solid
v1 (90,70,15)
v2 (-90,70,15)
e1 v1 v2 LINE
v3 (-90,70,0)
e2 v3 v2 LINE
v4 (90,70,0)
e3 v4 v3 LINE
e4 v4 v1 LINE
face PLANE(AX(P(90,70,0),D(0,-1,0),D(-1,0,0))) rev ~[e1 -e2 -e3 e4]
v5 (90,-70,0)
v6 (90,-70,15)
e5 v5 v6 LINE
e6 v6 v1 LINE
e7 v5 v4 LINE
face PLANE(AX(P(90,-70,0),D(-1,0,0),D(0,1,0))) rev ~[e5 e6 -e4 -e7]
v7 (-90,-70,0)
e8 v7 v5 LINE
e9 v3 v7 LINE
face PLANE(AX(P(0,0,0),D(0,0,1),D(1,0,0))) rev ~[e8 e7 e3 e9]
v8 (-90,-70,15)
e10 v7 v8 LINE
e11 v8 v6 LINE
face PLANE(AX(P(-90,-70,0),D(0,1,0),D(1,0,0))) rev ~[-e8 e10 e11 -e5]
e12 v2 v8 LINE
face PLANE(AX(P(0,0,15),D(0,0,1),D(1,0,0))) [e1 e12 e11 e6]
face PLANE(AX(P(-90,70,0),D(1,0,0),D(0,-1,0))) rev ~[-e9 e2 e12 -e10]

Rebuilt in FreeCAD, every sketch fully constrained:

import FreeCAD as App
import Part
import Sketcher

V = App.Vector
Q = App.Units.Quantity


def add_polygon(sketch, points):
    """Adds a closed chain of lines whose ends are joined by coincident constraints."""
    first, n = sketch.GeometryCount, len(points)
    for a, b in zip(points, points[1:] + points[:1]):
        sketch.addGeometry(Part.LineSegment(App.Vector(*a, 0), App.Vector(*b, 0)), False)
    for i in range(n):
        sketch.addConstraint(Sketcher.Constraint("Coincident", first + i, 2, first + (i + 1) % n, 1))

doc = App.newDocument("Part")
params = doc.addObject("Spreadsheet::Sheet", "Params")
for row, (alias, value) in enumerate([
    ("sketch1_width", "180 mm"),
    ("sketch1_height", "140 mm"),
    ("pad1_length", "15 mm"),
], start=1):
    params.set(f"A{row}", alias)
    params.set(f"B{row}", "=" + value)
    params.setAlias(f"B{row}", alias)

body = doc.addObject("PartDesign::Body", "Body")

# Sketch on XY plane
sketch1 = body.newObject("Sketcher::SketchObject", "Sketch")
sketch1.AttachmentSupport = (doc.getObject("XY_Plane"), [""])
sketch1.MapMode = "FlatFace"
add_polygon(sketch1, [(-90, 70), (-90, -70), (90, -70), (90, 70)])  # lines 0-3
sketch1.addConstraint([
    Sketcher.Constraint("Vertical", 0),
    Sketcher.Constraint("Horizontal", 1),
    Sketcher.Constraint("Vertical", 2),
    Sketcher.Constraint("Horizontal", 3),
    Sketcher.Constraint("Symmetric", 0, 2, 2, 2, -1, 1),
    Sketcher.Constraint("DistanceX", 1, 1, 1, 2, Q("180 mm")),
    Sketcher.Constraint("DistanceY", 0, 2, 0, 1, Q("140 mm")),
])
sketch1.setExpression("Constraints[9]", "Params.sketch1_width")
sketch1.setExpression("Constraints[10]", "Params.sketch1_height")
pad1 = body.newObject("PartDesign::Pad", "Pad")
pad1.Profile = sketch1
pad1.setExpression("Length", "Params.pad1_length")

doc.recompute()
